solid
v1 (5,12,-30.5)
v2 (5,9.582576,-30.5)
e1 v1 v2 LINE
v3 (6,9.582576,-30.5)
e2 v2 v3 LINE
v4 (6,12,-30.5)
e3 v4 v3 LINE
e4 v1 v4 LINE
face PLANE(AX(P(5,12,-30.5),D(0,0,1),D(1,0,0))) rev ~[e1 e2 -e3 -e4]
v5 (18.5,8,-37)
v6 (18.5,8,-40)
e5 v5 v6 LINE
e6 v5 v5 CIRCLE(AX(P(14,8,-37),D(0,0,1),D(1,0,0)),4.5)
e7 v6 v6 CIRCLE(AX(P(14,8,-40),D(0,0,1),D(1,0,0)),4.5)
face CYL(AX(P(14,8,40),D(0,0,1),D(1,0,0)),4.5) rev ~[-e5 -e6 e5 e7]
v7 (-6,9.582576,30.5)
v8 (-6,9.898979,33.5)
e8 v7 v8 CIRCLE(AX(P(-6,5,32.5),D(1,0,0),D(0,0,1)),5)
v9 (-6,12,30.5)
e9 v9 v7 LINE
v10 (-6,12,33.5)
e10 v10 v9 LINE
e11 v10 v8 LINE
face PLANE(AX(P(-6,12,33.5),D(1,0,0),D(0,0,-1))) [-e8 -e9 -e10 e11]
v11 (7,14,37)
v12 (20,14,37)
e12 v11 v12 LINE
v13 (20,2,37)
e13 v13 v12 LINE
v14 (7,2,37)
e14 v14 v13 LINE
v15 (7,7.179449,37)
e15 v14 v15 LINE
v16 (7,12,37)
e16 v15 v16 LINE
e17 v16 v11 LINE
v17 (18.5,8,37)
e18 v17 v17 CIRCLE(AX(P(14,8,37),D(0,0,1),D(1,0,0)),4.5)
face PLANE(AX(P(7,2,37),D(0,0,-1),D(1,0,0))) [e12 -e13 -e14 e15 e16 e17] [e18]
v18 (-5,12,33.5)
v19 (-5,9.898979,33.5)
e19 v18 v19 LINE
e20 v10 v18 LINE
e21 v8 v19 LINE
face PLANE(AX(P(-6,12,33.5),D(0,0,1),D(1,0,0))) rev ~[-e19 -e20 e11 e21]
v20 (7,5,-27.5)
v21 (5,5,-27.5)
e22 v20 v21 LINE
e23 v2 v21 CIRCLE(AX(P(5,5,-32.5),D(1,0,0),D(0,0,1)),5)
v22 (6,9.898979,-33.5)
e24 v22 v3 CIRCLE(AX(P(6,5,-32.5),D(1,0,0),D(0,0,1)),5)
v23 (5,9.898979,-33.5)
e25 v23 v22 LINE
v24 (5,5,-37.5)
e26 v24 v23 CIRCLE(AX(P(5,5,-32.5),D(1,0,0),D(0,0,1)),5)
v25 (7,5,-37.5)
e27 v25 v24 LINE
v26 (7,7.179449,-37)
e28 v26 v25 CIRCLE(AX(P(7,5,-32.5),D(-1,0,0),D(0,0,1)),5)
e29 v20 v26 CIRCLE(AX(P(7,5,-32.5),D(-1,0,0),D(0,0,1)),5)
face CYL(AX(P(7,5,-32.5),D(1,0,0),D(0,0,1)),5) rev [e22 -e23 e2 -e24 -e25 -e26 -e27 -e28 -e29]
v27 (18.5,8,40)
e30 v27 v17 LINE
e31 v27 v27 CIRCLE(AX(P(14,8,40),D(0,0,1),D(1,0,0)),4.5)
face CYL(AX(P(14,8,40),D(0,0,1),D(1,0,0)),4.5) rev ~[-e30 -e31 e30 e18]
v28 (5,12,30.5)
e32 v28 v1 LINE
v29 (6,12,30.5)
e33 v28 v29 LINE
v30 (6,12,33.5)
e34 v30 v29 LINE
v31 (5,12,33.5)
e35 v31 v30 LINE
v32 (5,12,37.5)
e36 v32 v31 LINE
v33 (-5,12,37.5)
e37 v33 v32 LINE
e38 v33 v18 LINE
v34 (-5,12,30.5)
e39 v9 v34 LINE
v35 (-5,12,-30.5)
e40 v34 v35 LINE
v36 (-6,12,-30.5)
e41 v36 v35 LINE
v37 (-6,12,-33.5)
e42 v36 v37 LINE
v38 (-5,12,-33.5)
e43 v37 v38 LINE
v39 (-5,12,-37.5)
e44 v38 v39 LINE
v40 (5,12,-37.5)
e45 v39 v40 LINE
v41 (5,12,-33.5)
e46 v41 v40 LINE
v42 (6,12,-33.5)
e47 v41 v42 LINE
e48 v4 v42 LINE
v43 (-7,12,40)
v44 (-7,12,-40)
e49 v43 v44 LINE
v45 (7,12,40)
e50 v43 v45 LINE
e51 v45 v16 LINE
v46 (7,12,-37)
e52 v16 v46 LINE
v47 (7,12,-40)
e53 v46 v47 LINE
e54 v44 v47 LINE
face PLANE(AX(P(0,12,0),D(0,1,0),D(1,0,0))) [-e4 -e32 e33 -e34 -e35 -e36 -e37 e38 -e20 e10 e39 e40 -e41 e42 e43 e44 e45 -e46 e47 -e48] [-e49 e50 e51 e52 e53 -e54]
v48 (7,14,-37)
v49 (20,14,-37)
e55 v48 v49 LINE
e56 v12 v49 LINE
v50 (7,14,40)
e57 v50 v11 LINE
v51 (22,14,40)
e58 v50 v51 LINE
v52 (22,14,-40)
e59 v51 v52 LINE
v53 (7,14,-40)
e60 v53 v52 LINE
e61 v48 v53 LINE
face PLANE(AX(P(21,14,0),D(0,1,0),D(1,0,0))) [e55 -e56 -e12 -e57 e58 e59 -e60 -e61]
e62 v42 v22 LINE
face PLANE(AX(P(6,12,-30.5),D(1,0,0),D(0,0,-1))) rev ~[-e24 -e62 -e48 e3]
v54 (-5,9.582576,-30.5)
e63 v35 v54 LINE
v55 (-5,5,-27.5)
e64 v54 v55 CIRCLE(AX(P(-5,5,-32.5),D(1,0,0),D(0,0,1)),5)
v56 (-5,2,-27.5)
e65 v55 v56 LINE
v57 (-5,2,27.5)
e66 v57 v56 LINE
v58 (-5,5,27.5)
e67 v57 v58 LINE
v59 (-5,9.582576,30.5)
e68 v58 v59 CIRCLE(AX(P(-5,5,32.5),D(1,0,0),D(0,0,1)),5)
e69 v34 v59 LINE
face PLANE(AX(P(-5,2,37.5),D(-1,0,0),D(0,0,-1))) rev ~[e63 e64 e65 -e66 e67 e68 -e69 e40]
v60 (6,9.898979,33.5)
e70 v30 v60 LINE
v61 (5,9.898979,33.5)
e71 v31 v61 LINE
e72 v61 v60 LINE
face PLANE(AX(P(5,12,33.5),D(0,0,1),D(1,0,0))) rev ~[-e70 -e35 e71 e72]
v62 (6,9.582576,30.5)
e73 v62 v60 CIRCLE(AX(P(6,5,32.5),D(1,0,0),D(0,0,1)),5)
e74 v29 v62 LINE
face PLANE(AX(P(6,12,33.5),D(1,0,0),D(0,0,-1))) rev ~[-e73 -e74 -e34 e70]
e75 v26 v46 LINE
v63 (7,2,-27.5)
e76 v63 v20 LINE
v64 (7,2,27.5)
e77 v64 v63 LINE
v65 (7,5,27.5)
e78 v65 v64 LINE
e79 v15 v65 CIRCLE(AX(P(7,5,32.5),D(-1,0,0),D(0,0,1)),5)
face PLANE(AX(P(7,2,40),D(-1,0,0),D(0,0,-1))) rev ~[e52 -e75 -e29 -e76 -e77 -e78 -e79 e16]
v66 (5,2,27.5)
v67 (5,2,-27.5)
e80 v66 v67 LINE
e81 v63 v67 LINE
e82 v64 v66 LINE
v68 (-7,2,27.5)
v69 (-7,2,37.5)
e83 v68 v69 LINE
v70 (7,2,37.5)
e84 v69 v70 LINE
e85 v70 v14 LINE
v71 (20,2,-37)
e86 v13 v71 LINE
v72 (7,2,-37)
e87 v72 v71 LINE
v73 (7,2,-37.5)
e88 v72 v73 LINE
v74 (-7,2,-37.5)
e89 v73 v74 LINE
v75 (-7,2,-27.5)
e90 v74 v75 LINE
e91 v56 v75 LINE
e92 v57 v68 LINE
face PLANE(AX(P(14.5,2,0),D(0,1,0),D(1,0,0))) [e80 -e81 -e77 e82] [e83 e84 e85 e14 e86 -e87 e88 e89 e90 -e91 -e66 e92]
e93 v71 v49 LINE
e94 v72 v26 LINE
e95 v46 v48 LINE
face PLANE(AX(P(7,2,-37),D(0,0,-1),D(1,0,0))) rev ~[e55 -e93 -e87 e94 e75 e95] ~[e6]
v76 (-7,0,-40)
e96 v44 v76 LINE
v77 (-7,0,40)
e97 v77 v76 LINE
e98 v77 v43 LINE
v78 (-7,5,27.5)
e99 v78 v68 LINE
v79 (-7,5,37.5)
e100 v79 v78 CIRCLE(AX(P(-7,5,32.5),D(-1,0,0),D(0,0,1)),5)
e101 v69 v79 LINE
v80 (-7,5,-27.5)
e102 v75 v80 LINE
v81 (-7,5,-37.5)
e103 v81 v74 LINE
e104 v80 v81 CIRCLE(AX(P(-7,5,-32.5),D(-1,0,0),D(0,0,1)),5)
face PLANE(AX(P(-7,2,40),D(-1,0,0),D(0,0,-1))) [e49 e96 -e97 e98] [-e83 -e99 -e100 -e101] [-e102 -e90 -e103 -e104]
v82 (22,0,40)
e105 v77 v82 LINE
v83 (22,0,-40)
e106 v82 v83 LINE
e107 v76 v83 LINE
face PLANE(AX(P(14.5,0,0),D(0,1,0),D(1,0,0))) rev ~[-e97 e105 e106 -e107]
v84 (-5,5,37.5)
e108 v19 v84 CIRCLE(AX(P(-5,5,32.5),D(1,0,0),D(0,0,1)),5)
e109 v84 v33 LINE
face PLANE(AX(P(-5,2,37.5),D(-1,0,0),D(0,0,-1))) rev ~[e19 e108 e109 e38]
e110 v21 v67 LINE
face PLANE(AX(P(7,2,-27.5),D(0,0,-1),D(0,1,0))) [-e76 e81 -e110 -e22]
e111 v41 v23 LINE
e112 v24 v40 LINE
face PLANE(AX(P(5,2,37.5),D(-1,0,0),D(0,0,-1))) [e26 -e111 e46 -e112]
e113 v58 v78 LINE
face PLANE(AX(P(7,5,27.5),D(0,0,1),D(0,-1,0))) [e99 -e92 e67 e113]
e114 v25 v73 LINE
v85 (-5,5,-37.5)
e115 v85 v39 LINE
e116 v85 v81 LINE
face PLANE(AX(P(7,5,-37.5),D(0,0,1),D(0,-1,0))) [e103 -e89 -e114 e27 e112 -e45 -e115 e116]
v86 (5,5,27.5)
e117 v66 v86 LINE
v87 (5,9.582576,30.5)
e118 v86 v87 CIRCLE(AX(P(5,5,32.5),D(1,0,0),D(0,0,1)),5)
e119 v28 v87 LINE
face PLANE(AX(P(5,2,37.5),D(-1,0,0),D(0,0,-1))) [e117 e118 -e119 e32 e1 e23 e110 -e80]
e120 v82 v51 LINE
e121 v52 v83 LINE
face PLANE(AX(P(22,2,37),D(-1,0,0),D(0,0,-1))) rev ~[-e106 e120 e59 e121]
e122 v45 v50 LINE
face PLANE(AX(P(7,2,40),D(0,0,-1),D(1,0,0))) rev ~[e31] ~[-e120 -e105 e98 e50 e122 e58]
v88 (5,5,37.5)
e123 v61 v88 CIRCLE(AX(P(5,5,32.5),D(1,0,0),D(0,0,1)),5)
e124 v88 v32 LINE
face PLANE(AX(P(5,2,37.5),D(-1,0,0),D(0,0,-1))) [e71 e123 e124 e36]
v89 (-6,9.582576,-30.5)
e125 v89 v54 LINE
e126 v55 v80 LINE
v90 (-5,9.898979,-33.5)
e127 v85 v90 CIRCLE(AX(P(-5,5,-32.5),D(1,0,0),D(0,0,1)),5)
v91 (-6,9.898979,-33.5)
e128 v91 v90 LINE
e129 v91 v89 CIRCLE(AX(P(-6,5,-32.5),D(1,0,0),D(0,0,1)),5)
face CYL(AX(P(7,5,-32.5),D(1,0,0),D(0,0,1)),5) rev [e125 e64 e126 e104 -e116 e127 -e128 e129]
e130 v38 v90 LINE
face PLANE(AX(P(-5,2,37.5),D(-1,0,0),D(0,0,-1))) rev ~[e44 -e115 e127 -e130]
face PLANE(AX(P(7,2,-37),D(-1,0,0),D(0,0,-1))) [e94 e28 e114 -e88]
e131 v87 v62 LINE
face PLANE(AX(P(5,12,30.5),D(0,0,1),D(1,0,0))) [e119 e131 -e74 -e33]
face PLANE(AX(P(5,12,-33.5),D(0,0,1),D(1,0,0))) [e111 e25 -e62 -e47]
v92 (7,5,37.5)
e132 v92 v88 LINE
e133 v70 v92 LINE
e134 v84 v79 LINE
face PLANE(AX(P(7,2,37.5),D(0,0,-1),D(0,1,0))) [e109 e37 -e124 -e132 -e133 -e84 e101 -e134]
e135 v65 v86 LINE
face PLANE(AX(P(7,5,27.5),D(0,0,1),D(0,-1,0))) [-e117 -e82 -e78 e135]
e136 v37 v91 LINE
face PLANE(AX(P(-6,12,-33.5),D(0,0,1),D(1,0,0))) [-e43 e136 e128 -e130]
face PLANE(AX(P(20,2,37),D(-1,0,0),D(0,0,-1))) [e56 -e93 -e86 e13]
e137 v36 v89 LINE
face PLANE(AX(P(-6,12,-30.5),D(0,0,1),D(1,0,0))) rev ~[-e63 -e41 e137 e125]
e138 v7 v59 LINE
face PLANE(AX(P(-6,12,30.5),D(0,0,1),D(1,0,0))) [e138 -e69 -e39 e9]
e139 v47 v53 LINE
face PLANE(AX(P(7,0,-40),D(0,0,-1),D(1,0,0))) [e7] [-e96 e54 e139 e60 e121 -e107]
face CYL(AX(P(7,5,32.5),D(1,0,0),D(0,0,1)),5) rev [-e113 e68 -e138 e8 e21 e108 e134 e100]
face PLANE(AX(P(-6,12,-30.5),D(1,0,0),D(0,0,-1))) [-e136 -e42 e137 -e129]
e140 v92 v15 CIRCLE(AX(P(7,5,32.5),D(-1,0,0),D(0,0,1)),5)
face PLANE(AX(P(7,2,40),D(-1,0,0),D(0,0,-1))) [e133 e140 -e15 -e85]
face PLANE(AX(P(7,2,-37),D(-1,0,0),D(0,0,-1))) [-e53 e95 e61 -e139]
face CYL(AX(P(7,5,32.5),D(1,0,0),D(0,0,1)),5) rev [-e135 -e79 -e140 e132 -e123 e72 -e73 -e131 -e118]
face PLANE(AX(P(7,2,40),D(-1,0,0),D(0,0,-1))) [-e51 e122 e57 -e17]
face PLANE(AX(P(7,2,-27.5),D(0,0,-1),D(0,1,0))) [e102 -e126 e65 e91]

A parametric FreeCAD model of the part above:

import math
import FreeCAD as App
import Part
import Sketcher

V = App.Vector


def add_polygon(sketch, points):
    """Adds a closed chain of lines whose ends are joined by coincident constraints."""
    first, n = sketch.GeometryCount, len(points)
    for a, b in zip(points, points[1:] + points[:1]):
        sketch.addGeometry(Part.LineSegment(App.Vector(*a, 0), App.Vector(*b, 0)), False)
    for i in range(n):
        sketch.addConstraint(Sketcher.Constraint("Coincident", first + i, 2, first + (i + 1) % n, 1))

doc = App.newDocument("Part")
body = doc.addObject("PartDesign::Body", "Body")

# Sketch on XZ plane
sketch1 = body.newObject("Sketcher::SketchObject", "Sketch")
sketch1.AttachmentSupport = (doc.getObject("XZ_Plane"), [""])
sketch1.MapMode = "FlatFace"
add_polygon(sketch1, [(-7, -40), (-7, 40), (7, 40), (7, -40)])  # lines 0-3
sketch1.addConstraint(Sketcher.Constraint("Vertical", 0))
sketch1.addConstraint(Sketcher.Constraint("Horizontal", 1))
sketch1.addConstraint(Sketcher.Constraint("Vertical", 2))
sketch1.addConstraint(Sketcher.Constraint("Horizontal", 3))
sketch1.addConstraint(Sketcher.Constraint("Symmetric", 0, 2, 2, 2, -1, 1))
sketch1.addConstraint(Sketcher.Constraint("DistanceX", 1, 1, 1, 2, 14.0))
sketch1.addConstraint(Sketcher.Constraint("DistanceY", 0, 1, 0, 2, 80.0))
pad1 = body.newObject("PartDesign::Pad", "Pad")
pad1.Profile = sketch1
pad1.Length = 2
pad1.Reversed = True

# Sketch on XZ plane
sketch2 = body.newObject("Sketcher::SketchObject", "Sketch001")
sketch2.AttachmentSupport = (doc.getObject("XZ_Plane"), [""])
sketch2.MapMode = "FlatFace"
sketch2.AttachmentOffset = App.Placement(V(0, 0, -2), App.Rotation())
add_polygon(sketch2, [(-7, -40), (-7, 40), (7, 40), (7, -40)])  # lines 0-3
add_polygon(sketch2, [(5, 38), (-5, 38), (-5, -38), (5, -38)])  # lines 4-7
sketch2.addConstraint(Sketcher.Constraint("Vertical", 0))
sketch2.addConstraint(Sketcher.Constraint("Horizontal", 1))
sketch2.addConstraint(Sketcher.Constraint("Vertical", 2))
sketch2.addConstraint(Sketcher.Constraint("Horizontal", 3))
sketch2.addConstraint(Sketcher.Constraint("Horizontal", 4))
sketch2.addConstraint(Sketcher.Constraint("Vertical", 5))
sketch2.addConstraint(Sketcher.Constraint("Horizontal", 6))
sketch2.addConstraint(Sketcher.Constraint("Vertical", 7))
sketch2.addConstraint(Sketcher.Constraint("Symmetric", 0, 2, 2, 2, -1, 1))
sketch2.addConstraint(Sketcher.Constraint("Symmetric", 4, 2, 6, 2, -1, 1))
sketch2.addConstraint(Sketcher.Constraint("DistanceX", 1, 1, 1, 2, 14.0))
sketch2.addConstraint(Sketcher.Constraint("DistanceX", 4, 2, 4, 1, 10.0))
sketch2.addConstraint(Sketcher.Constraint("DistanceY", 0, 1, 0, 2, 80.0))
sketch2.addConstraint(Sketcher.Constraint("DistanceY", 5, 2, 5, 1, 75.0))
pad2 = body.newObject("PartDesign::Pad", "Pad001")
pad2.Profile = sketch2
pad2.Length = 10
pad2.Reversed = True

# Sketch on XZ plane
sketch3 = body.newObject("Sketcher::SketchObject", "Sketch002")
sketch3.AttachmentSupport = (doc.getObject("XZ_Plane"), [""])
sketch3.MapMode = "FlatFace"
sketch3.AttachmentOffset = App.Placement(V(0, 0, -12), App.Rotation())
add_polygon(sketch3, [(-6, 30.5), (-6, 33.5), (-5, 33.5), (-5, 30.5)])  # lines 0-3
add_polygon(sketch3, [(5, 30.5), (5, 33.5), (6, 33.5), (6, 30.5)])  # lines 4-7
add_polygon(sketch3, [(5, -33.5), (5, -30.5), (6, -30.5), (6, -33.5)])  # lines 8-11
add_polygon(sketch3, [(-6, -33.5), (-6, -30.5), (-5, -30.5), (-5, -33.5)])  # lines 12-15
sketch3.addConstraint(Sketcher.Constraint("Vertical", 0))
sketch3.addConstraint(Sketcher.Constraint("Horizontal", 1))
sketch3.addConstraint(Sketcher.Constraint("Vertical", 2))
sketch3.addConstraint(Sketcher.Constraint("Horizontal", 3))
sketch3.addConstraint(Sketcher.Constraint("Vertical", 4))
sketch3.addConstraint(Sketcher.Constraint("Horizontal", 5))
sketch3.addConstraint(Sketcher.Constraint("Vertical", 6))
sketch3.addConstraint(Sketcher.Constraint("Horizontal", 7))
sketch3.addConstraint(Sketcher.Constraint("Vertical", 8))
sketch3.addConstraint(Sketcher.Constraint("Horizontal", 9))
sketch3.addConstraint(Sketcher.Constraint("Vertical", 10))
sketch3.addConstraint(Sketcher.Constraint("Horizontal", 11))
sketch3.addConstraint(Sketcher.Constraint("Vertical", 12))
sketch3.addConstraint(Sketcher.Constraint("Horizontal", 13))
sketch3.addConstraint(Sketcher.Constraint("Vertical", 14))
sketch3.addConstraint(Sketcher.Constraint("Horizontal", 15))
sketch3.addConstraint(Sketcher.Constraint("Symmetric", 2, 2, 8, 2, -1, 1))
sketch3.addConstraint(Sketcher.Constraint("Symmetric", 0, 2, 10, 2, -1, 1))
sketch3.addConstraint(Sketcher.Constraint("Symmetric", 6, 2, 12, 2, -1, 1))
sketch3.addConstraint(Sketcher.Constraint("Symmetric", 4, 2, 14, 2, -1, 1))
sketch3.addConstraint(Sketcher.Constraint("Symmetric", 1, 2, 4, 2, -2))
sketch3.addConstraint(Sketcher.Constraint("Symmetric", 3, 2, 6, 2, -2))
sketch3.addConstraint(Sketcher.Constraint("DistanceX", 1, 1, 1, 2, 1.0))
sketch3.addConstraint(Sketcher.Constraint("DistanceY", 0, 1, 0, 2, 3.0))
sketch3.addConstraint(Sketcher.Constraint("DistanceX", 0, 2, -1, 1, 6.0))
sketch3.addConstraint(Sketcher.Constraint("DistanceY", 8, 2, 7, 2, 61.0))
pocket1 = body.newObject("PartDesign::Pocket", "Pocket")
pocket1.Profile = sketch3
pocket1.Length = 10
pocket1.Reversed = True

# Sketch on YZ plane
sketch4 = body.newObject("Sketcher::SketchObject", "Sketch003")
sketch4.AttachmentSupport = (doc.getObject("YZ_Plane"), [""])
sketch4.MapMode = "FlatFace"
sketch4.AttachmentOffset = App.Placement(V(0, 0, 7), App.Rotation())
sketch4.addGeometry(Part.ArcOfCircle(Part.Circle(V(5, 32.5, 0), V(0, 0, 1), 5), math.radians(-90), math.radians(90)), False)
sketch4.addGeometry(Part.LineSegment(V(5, 37.5, 0), V(2, 37.5, 0)), False)
sketch4.addGeometry(Part.LineSegment(V(2, 37.5, 0), V(2, 27.5, 0)), False)
sketch4.addGeometry(Part.LineSegment(V(2, 27.5, 0), V(5, 27.5, 0)), False)
sketch4.addGeometry(Part.ArcOfCircle(Part.Circle(V(5, -32.5, 0), V(0, 0, 1), 5), math.radians(-90), math.radians(90)), False)
sketch4.addGeometry(Part.LineSegment(V(5, -27.5, 0), V(2, -27.5, 0)), False)
sketch4.addGeometry(Part.LineSegment(V(2, -27.5, 0), V(2, -37.5, 0)), False)
sketch4.addGeometry(Part.LineSegment(V(2, -37.5, 0), V(5, -37.5, 0)), False)
sketch4.addConstraint(Sketcher.Constraint("Tangent", 0, 2, 1, 1))
sketch4.addConstraint(Sketcher.Constraint("Coincident", 1, 2, 2, 1))
sketch4.addConstraint(Sketcher.Constraint("Coincident", 2, 2, 3, 1))
sketch4.addConstraint(Sketcher.Constraint("Tangent", 3, 2, 0, 1))
sketch4.addConstraint(Sketcher.Constraint("Tangent", 4, 2, 5, 1))
sketch4.addConstraint(Sketcher.Constraint("Coincident", 5, 2, 6, 1))
sketch4.addConstraint(Sketcher.Constraint("Coincident", 6, 2, 7, 1))
sketch4.addConstraint(Sketcher.Constraint("Tangent", 7, 2, 4, 1))
sketch4.addConstraint(Sketcher.Constraint("Horizontal", 1))
sketch4.addConstraint(Sketcher.Constraint("Vertical", 2))
sketch4.addConstraint(Sketcher.Constraint("Horizontal", 3))
sketch4.addConstraint(Sketcher.Constraint("Horizontal", 5))
sketch4.addConstraint(Sketcher.Constraint("Vertical", 6))
sketch4.addConstraint(Sketcher.Constraint("Horizontal", 7))
sketch4.addConstraint(Sketcher.Constraint("Equal", 0, 4))
sketch4.addConstraint(Sketcher.Constraint("Symmetric", 0, 3, 4, 3, -1))
sketch4.addConstraint(Sketcher.Constraint("Vertical", 2, 2, 5, 2))
sketch4.addConstraint(Sketcher.Constraint("Radius", 0, 5.0))
sketch4.addConstraint(Sketcher.Constraint("DistanceX", 1, 2, 1, 1, 3.0))
sketch4.addConstraint(Sketcher.Constraint("DistanceX", -1, 1, 0, 3, 5.0))
sketch4.addConstraint(Sketcher.Constraint("DistanceY", 4, 3, 0, 3, 65.0))
pocket2 = body.newObject("PartDesign::Pocket", "Pocket001")
pocket2.Profile = sketch4
pocket2.Length = 14

# Sketch on XZ plane
sketch5 = body.newObject("Sketcher::SketchObject", "Sketch004")
sketch5.AttachmentSupport = (doc.getObject("XZ_Plane"), [""])
sketch5.MapMode = "FlatFace"
add_polygon(sketch5, [(7, -40), (7, 40), (22, 40), (22, -40)])  # lines 0-3
sketch5.addConstraint(Sketcher.Constraint("Vertical", 0))
sketch5.addConstraint(Sketcher.Constraint("Horizontal", 1))
sketch5.addConstraint(Sketcher.Constraint("Vertical", 2))
sketch5.addConstraint(Sketcher.Constraint("Horizontal", 3))
sketch5.addConstraint(Sketcher.Constraint("DistanceX", 1, 1, 1, 2, 15.0))
sketch5.addConstraint(Sketcher.Constraint("DistanceY", 0, 1, 0, 2, 80.0))
sketch5.addConstraint(Sketcher.Constraint("DistanceX", -1, 1, 0, 2, 7.0))
sketch5.addConstraint(Sketcher.Constraint("DistanceY", -1, 1, 0, 2, 40.0))
pad3 = body.newObject("PartDesign::Pad", "Pad002")
pad3.Profile = sketch5
pad3.Length = 2
pad3.Reversed = True

# Sketch on XZ plane
sketch6 = body.newObject("Sketcher::SketchObject", "Sketch005")
sketch6.AttachmentSupport = (doc.getObject("XZ_Plane"), [""])
sketch6.MapMode = "FlatFace"
sketch6.AttachmentOffset = App.Placement(V(0, 0, -2), App.Rotation())
add_polygon(sketch6, [(7, 37), (7, 40), (22, 40), (22, 37)])  # lines 0-3
add_polygon(sketch6, [(7, -40), (7, -37), (22, -37), (22, -40)])  # lines 4-7
sketch6.addConstraint(Sketcher.Constraint("Vertical", 0))
sketch6.addConstraint(Sketcher.Constraint("Horizontal", 1))
sketch6.addConstraint(Sketcher.Constraint("Vertical", 2))
sketch6.addConstraint(Sketcher.Constraint("Horizontal", 3))
sketch6.addConstraint(Sketcher.Constraint("Vertical", 4))
sketch6.addConstraint(Sketcher.Constraint("Horizontal", 5))
sketch6.addConstraint(Sketcher.Constraint("Vertical", 6))
sketch6.addConstraint(Sketcher.Constraint("Horizontal", 7))
sketch6.addConstraint(Sketcher.Constraint("Symmetric", 3, 2, 4, 2, -1))
sketch6.addConstraint(Sketcher.Constraint("Symmetric", 1, 2, 6, 2, -1))
sketch6.addConstraint(Sketcher.Constraint("DistanceX", 1, 1, 1, 2, 15.0))
sketch6.addConstraint(Sketcher.Constraint("DistanceY", 0, 1, 0, 2, 3.0))
sketch6.addConstraint(Sketcher.Constraint("DistanceX", -1, 1, 0, 2, 7.0))
sketch6.addConstraint(Sketcher.Constraint("DistanceY", -1, 1, 0, 2, 40.0))
pad4 = body.newObject("PartDesign::Pad", "Pad003")
pad4.Profile = sketch6
pad4.Length = 12
pad4.Reversed = True

# Sketch on XY plane
sketch7 = body.newObject("Sketcher::SketchObject", "Sketch006")
sketch7.AttachmentSupport = (doc.getObject("XY_Plane"), [""])
sketch7.MapMode = "FlatFace"
sketch7.AttachmentOffset = App.Placement(V(0, 0, 40), App.Rotation())
sketch7.addGeometry(Part.Circle(V(14, 8, 0), V(0, 0, 1), 4.5), False)
sketch7.addConstraint(Sketcher.Constraint("Diameter", 0, 9.0))
sketch7.addConstraint(Sketcher.Constraint("DistanceX", -1, 1, 0, 3, 14.0))
sketch7.addConstraint(Sketcher.Constraint("DistanceY", -1, 1, 0, 3, 8.0))
pocket3 = body.newObject("PartDesign::Pocket", "Pocket002")
pocket3.Profile = sketch7
pocket3.Length = 80

# Sketch on XZ plane
sketch8 = body.newObject("Sketcher::SketchObject", "Sketch007")
sketch8.AttachmentSupport = (doc.getObject("XZ_Plane"), [""])
sketch8.MapMode = "FlatFace"
sketch8.AttachmentOffset = App.Placement(V(0, 0, -2), App.Rotation())
add_polygon(sketch8, [(20, -37), (20, 37), (22, 37), (22, -37)])  # lines 0-3
sketch8.addConstraint(Sketcher.Constraint("Vertical", 0))
sketch8.addConstraint(Sketcher.Constraint("Horizontal", 1))
sketch8.addConstraint(Sketcher.Constraint("Vertical", 2))
sketch8.addConstraint(Sketcher.Constraint("Horizontal", 3))
sketch8.addConstraint(Sketcher.Constraint("DistanceX", 1, 1, 1, 2, 2.0))
sketch8.addConstraint(Sketcher.Constraint("DistanceY", 0, 1, 0, 2, 74.0))
sketch8.addConstraint(Sketcher.Constraint("DistanceX", -1, 1, 0, 2, 20.0))
sketch8.addConstraint(Sketcher.Constraint("DistanceY", -1, 1, 0, 2, 37.0))
pad5 = body.newObject("PartDesign::Pad", "Pad004")
pad5.Profile = sketch8
pad5.Length = 12
pad5.Reversed = True

doc.recompute()
